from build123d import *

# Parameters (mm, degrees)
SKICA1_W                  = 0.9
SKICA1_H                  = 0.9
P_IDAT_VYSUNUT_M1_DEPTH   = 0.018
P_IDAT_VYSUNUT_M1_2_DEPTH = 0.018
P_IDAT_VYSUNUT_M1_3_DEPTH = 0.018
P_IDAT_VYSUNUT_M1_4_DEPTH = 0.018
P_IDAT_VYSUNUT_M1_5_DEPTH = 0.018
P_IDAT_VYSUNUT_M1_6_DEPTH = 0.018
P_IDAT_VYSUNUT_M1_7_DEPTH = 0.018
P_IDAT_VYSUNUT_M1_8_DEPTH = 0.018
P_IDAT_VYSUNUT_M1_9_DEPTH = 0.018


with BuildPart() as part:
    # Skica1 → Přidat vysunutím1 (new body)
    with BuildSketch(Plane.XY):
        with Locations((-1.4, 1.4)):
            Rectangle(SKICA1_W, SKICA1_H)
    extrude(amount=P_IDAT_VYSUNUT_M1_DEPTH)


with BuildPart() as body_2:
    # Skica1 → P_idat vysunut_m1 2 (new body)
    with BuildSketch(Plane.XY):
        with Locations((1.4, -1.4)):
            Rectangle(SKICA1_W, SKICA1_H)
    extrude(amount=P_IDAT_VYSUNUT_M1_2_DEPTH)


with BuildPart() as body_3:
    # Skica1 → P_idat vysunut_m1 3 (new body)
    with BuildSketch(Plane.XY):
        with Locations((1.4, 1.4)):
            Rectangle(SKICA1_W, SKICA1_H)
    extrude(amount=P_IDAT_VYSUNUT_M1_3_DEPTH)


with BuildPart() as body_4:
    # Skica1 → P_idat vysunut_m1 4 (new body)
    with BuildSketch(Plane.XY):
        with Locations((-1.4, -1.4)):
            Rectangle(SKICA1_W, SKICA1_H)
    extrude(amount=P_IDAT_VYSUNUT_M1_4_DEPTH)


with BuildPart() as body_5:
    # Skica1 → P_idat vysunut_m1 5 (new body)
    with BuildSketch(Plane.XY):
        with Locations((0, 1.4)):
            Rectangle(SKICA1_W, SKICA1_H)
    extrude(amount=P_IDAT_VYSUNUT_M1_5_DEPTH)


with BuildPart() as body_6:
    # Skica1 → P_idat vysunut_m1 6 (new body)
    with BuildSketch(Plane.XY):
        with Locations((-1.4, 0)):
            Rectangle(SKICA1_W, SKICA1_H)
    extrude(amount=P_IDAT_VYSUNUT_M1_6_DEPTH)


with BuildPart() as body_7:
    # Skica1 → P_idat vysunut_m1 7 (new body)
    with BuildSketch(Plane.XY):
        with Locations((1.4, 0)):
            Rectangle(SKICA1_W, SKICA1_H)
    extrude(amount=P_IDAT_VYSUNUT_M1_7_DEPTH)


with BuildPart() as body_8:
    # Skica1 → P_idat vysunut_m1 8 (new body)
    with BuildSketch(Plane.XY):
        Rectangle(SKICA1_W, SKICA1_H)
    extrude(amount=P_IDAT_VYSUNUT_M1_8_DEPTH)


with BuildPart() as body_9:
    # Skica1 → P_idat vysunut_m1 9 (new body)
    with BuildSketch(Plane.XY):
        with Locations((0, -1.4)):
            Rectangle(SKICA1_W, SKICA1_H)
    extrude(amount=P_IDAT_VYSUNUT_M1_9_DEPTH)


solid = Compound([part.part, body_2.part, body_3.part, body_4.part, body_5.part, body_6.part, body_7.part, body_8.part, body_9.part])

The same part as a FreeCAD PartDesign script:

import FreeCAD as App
import Part
import Sketcher

V = App.Vector

doc = App.newDocument("Part")
params = doc.addObject("Spreadsheet::Sheet", "Params")
for row, (alias, value) in enumerate([
    ("sketch1_width", "0.9 mm"),
    ("pad1_length", "0.018 mm"),
    ("sketch2_width", "0.9 mm"),
    ("pad2_length", "0.018 mm"),
    ("sketch3_width", "0.9 mm"),
    ("pad3_length", "0.018 mm"),
    ("sketch4_width", "0.9 mm"),
    ("pad4_length", "0.018 mm"),
    ("sketch5_width", "0.9 mm"),
    ("pad5_length", "0.018 mm"),
    ("sketch6_width", "0.9 mm"),
    ("pad6_length", "0.018 mm"),
    ("sketch7_width", "0.9 mm"),
    ("pad7_length", "0.018 mm"),
    ("sketch8_width", "0.9 mm"),
    ("pad8_length", "0.018 mm"),
    ("sketch9_width", "0.9 mm"),
    ("pad9_length", "0.018 mm"),
], start=1):
    params.set(f"A{row}", alias)
    params.set(f"B{row}", "=" + value)
    params.setAlias(f"B{row}", alias)

body = doc.addObject("PartDesign::Body", "Body")

# Sketch on XY plane
sketch1 = body.newObject("Sketcher::SketchObject", "Sketch")
sketch1.AttachmentSupport = (doc.getObject("XY_Plane"), [""])
sketch1.MapMode = "FlatFace"
sketch1.addGeometry([
    Part.LineSegment(V(-1.9, 1.9, 0), V(-1.9, 0.9, 0)),
    Part.LineSegment(V(-1.9, 0.9, 0), V(-0.9, 0.9, 0)),
    Part.LineSegment(V(-0.9, 0.9, 0), V(-0.9, 1.9, 0)),
    Part.LineSegment(V(-0.9, 1.9, 0), V(-1.9, 1.9, 0)),
], False)
sketch1.addConstraint([
    Sketcher.Constraint("Coincident", 0, 2, 1, 1),
    Sketcher.Constraint("Coincident", 1, 2, 2, 1),
    Sketcher.Constraint("Coincident", 2, 2, 3, 1),
    Sketcher.Constraint("Coincident", 3, 2, 0, 1),
    Sketcher.Constraint("Vertical", 0),
    Sketcher.Constraint("Horizontal", 1),
    Sketcher.Constraint("Vertical", 2),
    Sketcher.Constraint("Horizontal", 3),
    Sketcher.Constraint("Equal", 3, 0),
    Sketcher.Constraint("DistanceX", 1, 1, 1, 2, 0.9),
    Sketcher.Constraint("DistanceX", 0, 2, -1, 1, 1.85),
    Sketcher.Constraint("DistanceY", -1, 1, 0, 2, 0.95),
])
sketch1.setExpression("Constraints[9]", "Params.sketch1_width")
pad1 = body.newObject("PartDesign::Pad", "Pad")
pad1.Profile = sketch1
pad1.setExpression("Length", "Params.pad1_length")
body2 = doc.addObject("PartDesign::Body", "Body001")

# Sketch on XY plane
sketch2 = body2.newObject("Sketcher::SketchObject", "Sketch001")
sketch2.AttachmentSupport = (doc.getObject("XY_Plane001"), [""])
sketch2.MapMode = "FlatFace"
sketch2.addGeometry([
    Part.LineSegment(V(0.9, -0.9, 0), V(0.9, -1.9, 0)),
    Part.LineSegment(V(0.9, -1.9, 0), V(1.9, -1.9, 0)),
    Part.LineSegment(V(1.9, -1.9, 0), V(1.9, -0.9, 0)),
    Part.LineSegment(V(1.9, -0.9, 0), V(0.9, -0.9, 0)),
], False)
sketch2.addConstraint([
    Sketcher.Constraint("Coincident", 0, 2, 1, 1),
    Sketcher.Constraint("Coincident", 1, 2, 2, 1),
    Sketcher.Constraint("Coincident", 2, 2, 3, 1),
    Sketcher.Constraint("Coincident", 3, 2, 0, 1),
    Sketcher.Constraint("Vertical", 0),
    Sketcher.Constraint("Horizontal", 1),
    Sketcher.Constraint("Vertical", 2),
    Sketcher.Constraint("Horizontal", 3),
    Sketcher.Constraint("Equal", 3, 0),
    Sketcher.Constraint("DistanceX", 1, 1, 1, 2, 0.9),
    Sketcher.Constraint("DistanceX", -1, 1, 0, 2, 0.95),
    Sketcher.Constraint("DistanceY", 0, 2, -1, 1, 1.85),
])
sketch2.setExpression("Constraints[9]", "Params.sketch2_width")
pad2 = body2.newObject("PartDesign::Pad", "Pad001")
pad2.Profile = sketch2
pad2.setExpression("Length", "Params.pad2_length")
body3 = doc.addObject("PartDesign::Body", "Body002")

# Sketch on XY plane
sketch3 = body3.newObject("Sketcher::SketchObject", "Sketch002")
sketch3.AttachmentSupport = (doc.getObject("XY_Plane002"), [""])
sketch3.MapMode = "FlatFace"
sketch3.addGeometry([
    Part.LineSegment(V(0.9, 1.9, 0), V(0.9, 0.9, 0)),
    Part.LineSegment(V(0.9, 0.9, 0), V(1.9, 0.9, 0)),
    Part.LineSegment(V(1.9, 0.9, 0), V(1.9, 1.9, 0)),
    Part.LineSegment(V(1.9, 1.9, 0), V(0.9, 1.9, 0)),
], False)
sketch3.addConstraint([
    Sketcher.Constraint("Coincident", 0, 2, 1, 1),
    Sketcher.Constraint("Coincident", 1, 2, 2, 1),
    Sketcher.Constraint("Coincident", 2, 2, 3, 1),
    Sketcher.Constraint("Coincident", 3, 2, 0, 1),
    Sketcher.Constraint("Vertical", 0),
    Sketcher.Constraint("Horizontal", 1),
    Sketcher.Constraint("Vertical", 2),
    Sketcher.Constraint("Horizontal", 3),
    Sketcher.Constraint("Equal", 3, 0),
    Sketcher.Constraint("DistanceX", 1, 1, 1, 2, 0.9),
    Sketcher.Constraint("DistanceX", -1, 1, 0, 2, 0.95),
    Sketcher.Constraint("DistanceY", -1, 1, 0, 2, 0.95),
])
sketch3.setExpression("Constraints[9]", "Params.sketch3_width")
pad3 = body3.newObject("PartDesign::Pad", "Pad002")
pad3.Profile = sketch3
pad3.setExpression("Length", "Params.pad3_length")
body4 = doc.addObject("PartDesign::Body", "Body003")

# Sketch on XY plane
sketch4 = body4.newObject("Sketcher::SketchObject", "Sketch003")
sketch4.AttachmentSupport = (doc.getObject("XY_Plane003"), [""])
sketch4.MapMode = "FlatFace"
sketch4.addGeometry([
    Part.LineSegment(V(-1.9, -0.9, 0), V(-1.9, -1.9, 0)),
    Part.LineSegment(V(-1.9, -1.9, 0), V(-0.9, -1.9, 0)),
    Part.LineSegment(V(-0.9, -1.9, 0), V(-0.9, -0.9, 0)),
    Part.LineSegment(V(-0.9, -0.9, 0), V(-1.9, -0.9, 0)),
], False)
sketch4.addConstraint([
    Sketcher.Constraint("Coincident", 0, 2, 1, 1),
    Sketcher.Constraint("Coincident", 1, 2, 2, 1),
    Sketcher.Constraint("Coincident", 2, 2, 3, 1),
    Sketcher.Constraint("Coincident", 3, 2, 0, 1),
    Sketcher.Constraint("Vertical", 0),
    Sketcher.Constraint("Horizontal", 1),
    Sketcher.Constraint("Vertical", 2),
    Sketcher.Constraint("Horizontal", 3),
    Sketcher.Constraint("Equal", 3, 0),
    Sketcher.Constraint("DistanceX", 1, 1, 1, 2, 0.9),
    Sketcher.Constraint("DistanceX", 0, 2, -1, 1, 1.85),
    Sketcher.Constraint("DistanceY", 0, 2, -1, 1, 1.85),
])
sketch4.setExpression("Constraints[9]", "Params.sketch4_width")
pad4 = body4.newObject("PartDesign::Pad", "Pad003")
pad4.Profile = sketch4
pad4.setExpression("Length", "Params.pad4_length")
body5 = doc.addObject("PartDesign::Body", "Body004")

# Sketch on XY plane
sketch5 = body5.newObject("Sketcher::SketchObject", "Sketch004")
sketch5.AttachmentSupport = (doc.getObject("XY_Plane004"), [""])
sketch5.MapMode = "FlatFace"
sketch5.addGeometry([
    Part.LineSegment(V(-0.5, 1.9, 0), V(-0.5, 0.9, 0)),
    Part.LineSegment(V(-0.5, 0.9, 0), V(0.5, 0.9, 0)),
    Part.LineSegment(V(0.5, 0.9, 0), V(0.5, 1.9, 0)),
    Part.LineSegment(V(0.5, 1.9, 0), V(-0.5, 1.9, 0)),
], False)
sketch5.addConstraint([
    Sketcher.Constraint("Coincident", 0, 2, 1, 1),
    Sketcher.Constraint("Coincident", 1, 2, 2, 1),
    Sketcher.Constraint("Coincident", 2, 2, 3, 1),
    Sketcher.Constraint("Coincident", 3, 2, 0, 1),
    Sketcher.Constraint("Vertical", 0),
    Sketcher.Constraint("Horizontal", 1),
    Sketcher.Constraint("Vertical", 2),
    Sketcher.Constraint("Horizontal", 3),
    Sketcher.Constraint("Equal", 3, 0),
    Sketcher.Constraint("DistanceX", 1, 1, 1, 2, 0.9),
    Sketcher.Constraint("DistanceX", 0, 2, -1, 1, 0.45),
    Sketcher.Constraint("DistanceY", -1, 1, 0, 2, 0.95),
])
sketch5.setExpression("Constraints[9]", "Params.sketch5_width")
pad5 = body5.newObject("PartDesign::Pad", "Pad004")
pad5.Profile = sketch5
pad5.setExpression("Length", "Params.pad5_length")
body6 = doc.addObject("PartDesign::Body", "Body005")

# Sketch on XY plane
sketch6 = body6.newObject("Sketcher::SketchObject", "Sketch005")
sketch6.AttachmentSupport = (doc.getObject("XY_Plane005"), [""])
sketch6.MapMode = "FlatFace"
sketch6.addGeometry([
    Part.LineSegment(V(-1.9, 0.5, 0), V(-1.9, -0.5, 0)),
    Part.LineSegment(V(-1.9, -0.5, 0), V(-0.9, -0.5, 0)),
    Part.LineSegment(V(-0.9, -0.5, 0), V(-0.9, 0.5, 0)),
    Part.LineSegment(V(-0.9, 0.5, 0), V(-1.9, 0.5, 0)),
], False)
sketch6.addConstraint([
    Sketcher.Constraint("Coincident", 0, 2, 1, 1),
    Sketcher.Constraint("Coincident", 1, 2, 2, 1),
    Sketcher.Constraint("Coincident", 2, 2, 3, 1),
    Sketcher.Constraint("Coincident", 3, 2, 0, 1),
    Sketcher.Constraint("Vertical", 0),
    Sketcher.Constraint("Horizontal", 1),
    Sketcher.Constraint("Vertical", 2),
    Sketcher.Constraint("Horizontal", 3),
    Sketcher.Constraint("Equal", 3, 0),
    Sketcher.Constraint("DistanceX", 1, 1, 1, 2, 0.9),
    Sketcher.Constraint("DistanceX", 0, 2, -1, 1, 1.85),
    Sketcher.Constraint("DistanceY", 0, 2, -1, 1, 0.45),
])
sketch6.setExpression("Constraints[9]", "Params.sketch6_width")
pad6 = body6.newObject("PartDesign::Pad", "Pad005")
pad6.Profile = sketch6
pad6.setExpression("Length", "Params.pad6_length")
body7 = doc.addObject("PartDesign::Body", "Body006")

# Sketch on XY plane
sketch7 = body7.newObject("Sketcher::SketchObject", "Sketch006")
sketch7.AttachmentSupport = (doc.getObject("XY_Plane006"), [""])
sketch7.MapMode = "FlatFace"
sketch7.addGeometry([
    Part.LineSegment(V(0.9, 0.5, 0), V(0.9, -0.5, 0)),
    Part.LineSegment(V(0.9, -0.5, 0), V(1.9, -0.5, 0)),
    Part.LineSegment(V(1.9, -0.5, 0), V(1.9, 0.5, 0)),
    Part.LineSegment(V(1.9, 0.5, 0), V(0.9, 0.5, 0)),
], False)
sketch7.addConstraint([
    Sketcher.Constraint("Coincident", 0, 2, 1, 1),
    Sketcher.Constraint("Coincident", 1, 2, 2, 1),
    Sketcher.Constraint("Coincident", 2, 2, 3, 1),
    Sketcher.Constraint("Coincident", 3, 2, 0, 1),
    Sketcher.Constraint("Vertical", 0),
    Sketcher.Constraint("Horizontal", 1),
    Sketcher.Constraint("Vertical", 2),
    Sketcher.Constraint("Horizontal", 3),
    Sketcher.Constraint("Equal", 3, 0),
    Sketcher.Constraint("DistanceX", 1, 1, 1, 2, 0.9),
    Sketcher.Constraint("DistanceX", -1, 1, 0, 2, 0.95),
    Sketcher.Constraint("DistanceY", 0, 2, -1, 1, 0.45),
])
sketch7.setExpression("Constraints[9]", "Params.sketch7_width")
pad7 = body7.newObject("PartDesign::Pad", "Pad006")
pad7.Profile = sketch7
pad7.setExpression("Length", "Params.pad7_length")
body8 = doc.addObject("PartDesign::Body", "Body007")

# Sketch on XY plane
sketch8 = body8.newObject("Sketcher::SketchObject", "Sketch007")
sketch8.AttachmentSupport = (doc.getObject("XY_Plane007"), [""])
sketch8.MapMode = "FlatFace"
sketch8.addGeometry([
    Part.LineSegment(V(-0.5, 0.5, 0), V(-0.5, -0.5, 0)),
    Part.LineSegment(V(-0.5, -0.5, 0), V(0.5, -0.5, 0)),
    Part.LineSegment(V(0.5, -0.5, 0), V(0.5, 0.5, 0)),
    Part.LineSegment(V(0.5, 0.5, 0), V(-0.5, 0.5, 0)),
], False)
sketch8.addConstraint([
    Sketcher.Constraint("Coincident", 0, 2, 1, 1),
    Sketcher.Constraint("Coincident", 1, 2, 2, 1),
    Sketcher.Constraint("Coincident", 2, 2, 3, 1),
    Sketcher.Constraint("Coincident", 3, 2, 0, 1),
    Sketcher.Constraint("Vertical", 0),
    Sketcher.Constraint("Horizontal", 1),
    Sketcher.Constraint("Vertical", 2),
    Sketcher.Constraint("Horizontal", 3),
    Sketcher.Constraint("Symmetric", 0, 2, 2, 2, -1, 1),
    Sketcher.Constraint("Equal", 3, 0),
    Sketcher.Constraint("DistanceX", 1, 1, 1, 2, 0.9),
])
sketch8.setExpression("Constraints[10]", "Params.sketch8_width")
pad8 = body8.newObject("PartDesign::Pad", "Pad007")
pad8.Profile = sketch8
pad8.setExpression("Length", "Params.pad8_length")
body9 = doc.addObject("PartDesign::Body", "Body008")

# Sketch on XY plane
sketch9 = body9.newObject("Sketcher::SketchObject", "Sketch008")
sketch9.AttachmentSupport = (doc.getObject("XY_Plane008"), [""])
sketch9.MapMode = "FlatFace"
sketch9.addGeometry([
    Part.LineSegment(V(-0.5, -0.9, 0), V(-0.5, -1.9, 0)),
    Part.LineSegment(V(-0.5, -1.9, 0), V(0.5, -1.9, 0)),
    Part.LineSegment(V(0.5, -1.9, 0), V(0.5, -0.9, 0)),
    Part.LineSegment(V(0.5, -0.9, 0), V(-0.5, -0.9, 0)),
], False)
sketch9.addConstraint([
    Sketcher.Constraint("Coincident", 0, 2, 1, 1),
    Sketcher.Constraint("Coincident", 1, 2, 2, 1),
    Sketcher.Constraint("Coincident", 2, 2, 3, 1),
    Sketcher.Constraint("Coincident", 3, 2, 0, 1),
    Sketcher.Constraint("Vertical", 0),
    Sketcher.Constraint("Horizontal", 1),
    Sketcher.Constraint("Vertical", 2),
    Sketcher.Constraint("Horizontal", 3),
    Sketcher.Constraint("Equal", 3, 0),
    Sketcher.Constraint("DistanceX", 1, 1, 1, 2, 0.9),
    Sketcher.Constraint("DistanceX", 0, 2, -1, 1, 0.45),
    Sketcher.Constraint("DistanceY", 0, 2, -1, 1, 1.85),
])
sketch9.setExpression("Constraints[9]", "Params.sketch9_width")
pad9 = body9.newObject("PartDesign::Pad", "Pad008")
pad9.Profile = sketch9
pad9.setExpression("Length", "Params.pad9_length")

doc.recompute()
